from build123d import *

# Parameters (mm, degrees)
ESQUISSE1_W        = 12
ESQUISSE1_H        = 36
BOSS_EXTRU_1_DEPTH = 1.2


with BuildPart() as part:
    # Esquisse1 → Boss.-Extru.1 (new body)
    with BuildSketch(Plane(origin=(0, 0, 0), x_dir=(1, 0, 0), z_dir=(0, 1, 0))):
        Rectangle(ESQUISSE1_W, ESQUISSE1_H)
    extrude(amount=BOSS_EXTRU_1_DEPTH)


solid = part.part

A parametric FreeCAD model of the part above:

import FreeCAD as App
import Part
import Sketcher

doc = App.newDocument("Part")
body = doc.addObject("PartDesign::Body", "Body")

# Sketch on XZ plane
sketch1 = doc.addObject("Sketcher::SketchObject", "Sketch")
body.addObject(sketch1)
sketch1.AttachmentSupport = (doc.XZ_Plane, [""])
sketch1.MapMode = "FlatFace"
sketch1.addGeometry([
    Part.LineSegment(App.Vector(-6, -18, 0), App.Vector(-6, 18, 0)),
    Part.LineSegment(App.Vector(-6, 18, 0), App.Vector(6, 18, 0)),
    Part.LineSegment(App.Vector(6, 18, 0), App.Vector(6, -18, 0)),
    Part.LineSegment(App.Vector(6, -18, 0), App.Vector(-6, -18, 0)),
], False)
sketch1.addConstraint([
    Sketcher.Constraint("Coincident", 0, 2, 1, 1),
    Sketcher.Constraint("Coincident", 1, 2, 2, 1),
    Sketcher.Constraint("Coincident", 2, 2, 3, 1),
    Sketcher.Constraint("Coincident", 3, 2, 0, 1),
    Sketcher.Constraint("Vertical", 0),
    Sketcher.Constraint("Horizontal", 1),
    Sketcher.Constraint("Vertical", 2),
    Sketcher.Constraint("Horizontal", 3),
    Sketcher.Constraint("Symmetric", 0, 2, 2, 2, -1, 1),
    Sketcher.Constraint("DistanceX", 1, 1, 1, 2, 12.0),
    Sketcher.Constraint("DistanceY", 0, 1, 0, 2, 36.0),
])
pad1 = doc.addObject("PartDesign::Pad", "Pad")
body.addObject(pad1)
pad1.Profile = sketch1
pad1.Length = 1.2
pad1.Reversed = True

doc.recompute()
